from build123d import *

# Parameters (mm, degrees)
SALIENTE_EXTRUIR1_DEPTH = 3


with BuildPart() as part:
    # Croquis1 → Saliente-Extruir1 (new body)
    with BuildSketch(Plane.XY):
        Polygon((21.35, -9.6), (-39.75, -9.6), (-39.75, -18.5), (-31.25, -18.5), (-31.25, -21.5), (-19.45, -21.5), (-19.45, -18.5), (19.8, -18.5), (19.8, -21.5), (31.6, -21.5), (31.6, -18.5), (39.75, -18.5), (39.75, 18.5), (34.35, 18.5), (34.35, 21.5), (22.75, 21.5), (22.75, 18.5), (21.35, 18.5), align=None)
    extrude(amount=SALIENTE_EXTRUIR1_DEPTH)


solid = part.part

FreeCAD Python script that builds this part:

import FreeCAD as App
import Part
import Sketcher


def add_polygon(sketch, points):
    """Adds a closed chain of lines whose ends are joined by coincident constraints."""
    first, n = sketch.GeometryCount, len(points)
    for a, b in zip(points, points[1:] + points[:1]):
        sketch.addGeometry(Part.LineSegment(App.Vector(*a, 0), App.Vector(*b, 0)), False)
    for i in range(n):
        sketch.addConstraint(Sketcher.Constraint("Coincident", first + i, 2, first + (i + 1) % n, 1))

doc = App.newDocument("Part")
body = doc.addObject("PartDesign::Body", "Body")

# Sketch on XY plane
sketch1 = body.newObject("Sketcher::SketchObject", "Sketch")
sketch1.AttachmentSupport = (doc.getObject("XY_Plane"), [""])
sketch1.MapMode = "FlatFace"
add_polygon(sketch1, [(21.4, -9.6), (-39.8, -9.6), (-39.8, -18.5), (-31.2, -18.5), (-31.2, -21.5), (-19.4, -21.5), (-19.4, -18.5), (19.8, -18.5), (19.8, -21.5), (31.6, -21.5), (31.6, -18.5), (39.8, -18.5), (39.8, 18.5), (34.4, 18.5), (34.4, 21.5), (22.8, 21.5), (22.8, 18.5), (21.4, 18.5)])  # lines 0-17
sketch1.addConstraint([
    Sketcher.Constraint("Horizontal", 0),
    Sketcher.Constraint("Vertical", 1),
    Sketcher.Constraint("Horizontal", 2),
    Sketcher.Constraint("Vertical", 3),
    Sketcher.Constraint("Horizontal", 4),
    Sketcher.Constraint("Vertical", 5),
    Sketcher.Constraint("Horizontal", 6),
    Sketcher.Constraint("Vertical", 7),
    Sketcher.Constraint("Horizontal", 8),
    Sketcher.Constraint("Vertical", 9),
    Sketcher.Constraint("Horizontal", 10),
    Sketcher.Constraint("Vertical", 11),
    Sketcher.Constraint("Horizontal", 12),
    Sketcher.Constraint("Vertical", 13),
    Sketcher.Constraint("Horizontal", 14),
    Sketcher.Constraint("Vertical", 15),
    Sketcher.Constraint("Horizontal", 16),
    Sketcher.Constraint("Vertical", 17),
    Sketcher.Constraint("Symmetric", 1, 2, 11, 2, -1, 1),
    Sketcher.Constraint("Horizontal", 2, 2, 5, 2),
    Sketcher.Constraint("Horizontal", 4, 2, 7, 2),
    Sketcher.Constraint("Horizontal", 6, 2, 9, 2),
    Sketcher.Constraint("Horizontal", 12, 2, 15, 2),
    Sketcher.Constraint("Equal", 4, 8),
    Sketcher.Constraint("Equal", 9, 13),
    Sketcher.Constraint("DistanceY", 3, 2, 3, 1, 3.0),
    Sketcher.Constraint("DistanceY", 11, 1, 11, 2, 37.0),
    Sketcher.Constraint("DistanceX", 0, 2, 0, 1, 61.1),
    Sketcher.Constraint("DistanceX", 2, 1, 2, 2, 8.5),
    Sketcher.Constraint("DistanceX", 4, 1, 4, 2, 11.8),
    Sketcher.Constraint("DistanceX", 12, 2, 12, 1, 5.4),
    Sketcher.Constraint("DistanceX", 14, 2, 14, 1, 11.6),
    Sketcher.Constraint("DistanceX", 16, 2, 16, 1, 1.4),
    Sketcher.Constraint("DistanceY", 1, 2, 1, 1, 8.9),
    Sketcher.Constraint("DistanceX", 6, 1, 6, 2, 39.25),
])
pad1 = body.newObject("PartDesign::Pad", "Pad")
pad1.Profile = sketch1
pad1.Length = 3

doc.recompute()
